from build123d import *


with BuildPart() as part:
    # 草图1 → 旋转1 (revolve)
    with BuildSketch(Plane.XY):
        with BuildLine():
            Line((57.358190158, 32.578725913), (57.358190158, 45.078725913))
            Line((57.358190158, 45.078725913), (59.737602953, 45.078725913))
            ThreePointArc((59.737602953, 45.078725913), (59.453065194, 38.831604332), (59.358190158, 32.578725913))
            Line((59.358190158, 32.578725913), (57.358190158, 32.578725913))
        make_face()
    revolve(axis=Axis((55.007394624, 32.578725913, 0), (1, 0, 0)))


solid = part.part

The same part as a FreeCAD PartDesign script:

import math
import FreeCAD as App
import Part
import Sketcher

V = App.Vector

doc = App.newDocument("Part")
body = doc.addObject("PartDesign::Body", "Body")

sketch1 = body.newObject("Sketcher::SketchObject", "Sketch")
sketch1.AttachmentSupport = (doc.getObject("XY_Plane"), [""])
sketch1.MapMode = "FlatFace"
sketch1.addGeometry([
    Part.LineSegment(V(57.35819, 45.078726, 0), V(57.35819, 32.578726, 0)),
    Part.LineSegment(V(57.35819, 32.578726, 0), V(59.35819, 32.578726, 0)),
    Part.ArcOfCircle(Part.Circle(V(265.45819, 32.578726, 0), V(0, 0, 1), 206.1), math.radians(176.522867), math.radians(180)),
    Part.LineSegment(V(59.737603, 45.078726, 0), V(57.35819, 45.078726, 0)),
], False)
sketch1.addGeometry(Part.LineSegment(V(57.35819, 32.578726, 0), V(265.45819, 32.578726, 0)), True)
sketch1.addConstraint([
    Sketcher.Constraint("Coincident", 0, 2, 1, 1),
    Sketcher.Constraint("Coincident", 1, 2, 2, 2),
    Sketcher.Constraint("Coincident", 2, 1, 3, 1),
    Sketcher.Constraint("Coincident", 3, 2, 0, 1),
    Sketcher.Constraint("Vertical", 0),
    Sketcher.Constraint("Horizontal", 1),
    Sketcher.Constraint("Horizontal", 3),
    Sketcher.Constraint("Horizontal", 4),
    Sketcher.Constraint("Coincident", 4, 1, 0, 2),
    Sketcher.Constraint("Coincident", 4, 2, 2, 3),
    Sketcher.Constraint("Radius", 2, 206.1),
    Sketcher.Constraint("DistanceX", 1, 1, 1, 2, 2.0),
    Sketcher.Constraint("DistanceY", 0, 2, 0, 1, 12.5),
    Sketcher.Constraint("DistanceX", -1, 1, 2, 3, 265.45819),
    Sketcher.Constraint("DistanceY", -1, 1, 2, 3, 32.578726),
])
revolution = body.newObject("PartDesign::Revolution", "Revolution")
revolution.Profile = sketch1
revolution.ReferenceAxis = (sketch1, ["Axis0"])
revolution.Angle = 360

doc.recompute()
